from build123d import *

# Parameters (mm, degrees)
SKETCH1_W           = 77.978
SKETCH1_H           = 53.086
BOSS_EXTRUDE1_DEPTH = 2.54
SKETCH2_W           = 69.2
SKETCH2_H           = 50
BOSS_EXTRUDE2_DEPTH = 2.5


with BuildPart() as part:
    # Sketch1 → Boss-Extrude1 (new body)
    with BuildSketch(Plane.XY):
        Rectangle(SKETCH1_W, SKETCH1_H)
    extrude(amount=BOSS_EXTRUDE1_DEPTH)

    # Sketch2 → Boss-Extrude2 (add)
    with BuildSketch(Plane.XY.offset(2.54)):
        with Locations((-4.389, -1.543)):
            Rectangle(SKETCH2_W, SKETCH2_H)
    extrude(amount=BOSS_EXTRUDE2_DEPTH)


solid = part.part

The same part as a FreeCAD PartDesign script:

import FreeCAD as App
import Part
import Sketcher

doc = App.newDocument("Part")
body = doc.addObject("PartDesign::Body", "Body")

# Sketch on XY plane
sketch1 = body.newObject("Sketcher::SketchObject", "Sketch")
sketch1.AttachmentSupport = (doc.getObject("XY_Plane"), [""])
sketch1.MapMode = "FlatFace"
sketch1.addGeometry(Part.LineSegment(App.Vector(-39, 27, 0), App.Vector(-39, -27, 0)), False)
sketch1.addGeometry(Part.LineSegment(App.Vector(-39, -27, 0), App.Vector(39, -27, 0)), False)
sketch1.addGeometry(Part.LineSegment(App.Vector(39, -27, 0), App.Vector(39, 27, 0)), False)
sketch1.addGeometry(Part.LineSegment(App.Vector(39, 27, 0), App.Vector(-39, 27, 0)), False)
sketch1.addConstraint(Sketcher.Constraint("Coincident", 0, 2, 1, 1))
sketch1.addConstraint(Sketcher.Constraint("Coincident", 1, 2, 2, 1))
sketch1.addConstraint(Sketcher.Constraint("Coincident", 2, 2, 3, 1))
sketch1.addConstraint(Sketcher.Constraint("Coincident", 3, 2, 0, 1))
sketch1.addConstraint(Sketcher.Constraint("Vertical", 0))
sketch1.addConstraint(Sketcher.Constraint("Horizontal", 1))
sketch1.addConstraint(Sketcher.Constraint("Vertical", 2))
sketch1.addConstraint(Sketcher.Constraint("Horizontal", 3))
sketch1.addConstraint(Sketcher.Constraint("Symmetric", 0, 2, 2, 2, -1, 1))
sketch1.addConstraint(Sketcher.Constraint("DistanceX", 1, 1, 1, 2, 77.978))
sketch1.addConstraint(Sketcher.Constraint("DistanceY", 0, 2, 0, 1, 53.086))
pad1 = body.newObject("PartDesign::Pad", "Pad")
pad1.Profile = sketch1
pad1.Length = 2.54

# Sketch on XY plane
sketch2 = body.newObject("Sketcher::SketchObject", "Sketch001")
sketch2.AttachmentSupport = (doc.getObject("XY_Plane"), [""])
sketch2.MapMode = "FlatFace"
sketch2.AttachmentOffset = App.Placement(App.Vector(0, 0, 2.54), App.Rotation())
sketch2.addGeometry(Part.LineSegment(App.Vector(-39, 23, 0), App.Vector(-39, -27, 0)), False)
sketch2.addGeometry(Part.LineSegment(App.Vector(-39, -27, 0), App.Vector(30, -27, 0)), False)
sketch2.addGeometry(Part.LineSegment(App.Vector(30, -27, 0), App.Vector(30, 23, 0)), False)
sketch2.addGeometry(Part.LineSegment(App.Vector(30, 23, 0), App.Vector(-39, 23, 0)), False)
sketch2.addConstraint(Sketcher.Constraint("Coincident", 0, 2, 1, 1))
sketch2.addConstraint(Sketcher.Constraint("Coincident", 1, 2, 2, 1))
sketch2.addConstraint(Sketcher.Constraint("Coincident", 2, 2, 3, 1))
sketch2.addConstraint(Sketcher.Constraint("Coincident", 3, 2, 0, 1))
sketch2.addConstraint(Sketcher.Constraint("Vertical", 0))
sketch2.addConstraint(Sketcher.Constraint("Horizontal", 1))
sketch2.addConstraint(Sketcher.Constraint("Vertical", 2))
sketch2.addConstraint(Sketcher.Constraint("Horizontal", 3))
sketch2.addConstraint(Sketcher.Constraint("DistanceY", 0, 2, 0, 1, 50.0))
sketch2.addConstraint(Sketcher.Constraint("DistanceX", 1, 1, 1, 2, 69.2))
sketch2.addConstraint(Sketcher.Constraint("DistanceX", 0, 2, -1, 1, 38.989))
sketch2.addConstraint(Sketcher.Constraint("DistanceY", 0, 2, -1, 1, 26.543))
pad2 = body.newObject("PartDesign::Pad", "Pad001")
pad2.Profile = sketch2
pad2.Length = 2.5

doc.recompute()
